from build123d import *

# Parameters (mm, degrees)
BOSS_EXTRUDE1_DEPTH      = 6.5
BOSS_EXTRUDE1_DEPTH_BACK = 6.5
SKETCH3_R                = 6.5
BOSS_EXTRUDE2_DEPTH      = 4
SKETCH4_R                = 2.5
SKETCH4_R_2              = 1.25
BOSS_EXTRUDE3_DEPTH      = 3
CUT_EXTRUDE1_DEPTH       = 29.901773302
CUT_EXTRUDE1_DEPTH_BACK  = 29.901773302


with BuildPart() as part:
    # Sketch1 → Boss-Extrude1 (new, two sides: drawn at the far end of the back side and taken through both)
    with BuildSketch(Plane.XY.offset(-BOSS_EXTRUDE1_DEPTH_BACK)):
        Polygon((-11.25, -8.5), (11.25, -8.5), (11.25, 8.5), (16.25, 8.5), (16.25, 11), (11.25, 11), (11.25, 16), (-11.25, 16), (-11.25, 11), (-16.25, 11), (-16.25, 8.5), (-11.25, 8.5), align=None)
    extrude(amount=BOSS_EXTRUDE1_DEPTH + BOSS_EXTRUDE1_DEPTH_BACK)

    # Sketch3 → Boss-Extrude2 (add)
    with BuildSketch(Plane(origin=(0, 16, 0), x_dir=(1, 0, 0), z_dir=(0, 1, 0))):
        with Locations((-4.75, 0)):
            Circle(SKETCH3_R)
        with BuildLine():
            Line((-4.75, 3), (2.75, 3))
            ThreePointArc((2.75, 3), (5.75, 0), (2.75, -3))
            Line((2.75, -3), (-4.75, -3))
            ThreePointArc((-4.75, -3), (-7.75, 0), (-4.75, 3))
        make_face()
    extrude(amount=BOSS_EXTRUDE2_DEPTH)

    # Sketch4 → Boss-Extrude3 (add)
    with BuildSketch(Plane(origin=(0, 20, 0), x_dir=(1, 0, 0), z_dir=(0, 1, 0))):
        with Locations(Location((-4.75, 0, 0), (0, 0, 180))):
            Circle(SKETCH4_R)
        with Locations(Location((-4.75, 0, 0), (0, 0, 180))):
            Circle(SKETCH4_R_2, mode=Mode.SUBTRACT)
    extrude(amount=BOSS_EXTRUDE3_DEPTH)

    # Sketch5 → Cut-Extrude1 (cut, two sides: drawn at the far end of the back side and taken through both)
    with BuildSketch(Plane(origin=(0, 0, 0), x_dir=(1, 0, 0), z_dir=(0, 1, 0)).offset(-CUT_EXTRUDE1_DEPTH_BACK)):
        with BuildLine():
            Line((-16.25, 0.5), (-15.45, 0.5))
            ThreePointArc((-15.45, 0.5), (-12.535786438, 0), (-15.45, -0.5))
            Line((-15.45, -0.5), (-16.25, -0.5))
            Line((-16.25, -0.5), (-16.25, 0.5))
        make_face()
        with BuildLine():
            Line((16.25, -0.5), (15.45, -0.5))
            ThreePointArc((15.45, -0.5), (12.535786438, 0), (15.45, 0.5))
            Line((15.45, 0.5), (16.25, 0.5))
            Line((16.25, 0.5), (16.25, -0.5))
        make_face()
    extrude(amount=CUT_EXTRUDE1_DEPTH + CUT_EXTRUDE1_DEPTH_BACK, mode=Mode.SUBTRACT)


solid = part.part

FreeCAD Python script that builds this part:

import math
import FreeCAD as App
import Part
import Sketcher

V = App.Vector
Q = App.Units.Quantity

doc = App.newDocument("Part")
params = doc.addObject("Spreadsheet::Sheet", "Params")
for row, (alias, value) in enumerate([
    ("sketch1_width", "5 mm"),
    ("sketch1_height", "17 mm"),
    ("sketch1_width2", "22.5 mm"),
    ("sketch1_height2", "2.5 mm"),
    ("pad1_length", "6.5 mm"),
    ("pad1_length2", "6.5 mm"),
    ("sketch2_radius", "3 mm"),
    ("sketch2_radius2", "6.5 mm"),
    ("pad2_length", "4 mm"),
    ("sketch3_diameter", "5 mm"),
    ("sketch3_diameter2", "2.5 mm"),
    ("pad3_length", "3 mm"),
    ("sketch4_radius", "1.5 mm"),
    ("sketch4_height", "1 mm"),
    ("sketch4_width", "0.8 mm"),
], start=1):
    params.set(f"A{row}", alias)
    params.set(f"B{row}", "=" + value)
    params.setAlias(f"B{row}", alias)

body = doc.addObject("PartDesign::Body", "Body")

# Sketch on XY plane
sketch1 = body.newObject("Sketcher::SketchObject", "Sketch")
sketch1.AttachmentSupport = (doc.getObject("XY_Plane"), [""])
sketch1.MapMode = "FlatFace"
sketch1.addGeometry([
    Part.LineSegment(V(-11.25, -8.5, 0), V(11.25, -8.5, 0)),  # 0
    Part.LineSegment(V(11.25, -8.5, 0), V(11.25, 8.5, 0)),  # 1
    Part.LineSegment(V(11.25, 8.5, 0), V(16.25, 8.5, 0)),  # 2
    Part.LineSegment(V(16.25, 8.5, 0), V(16.25, 11, 0)),  # 3
    Part.LineSegment(V(16.25, 11, 0), V(11.25, 11, 0)),  # 4
    Part.LineSegment(V(11.25, 11, 0), V(11.25, 16, 0)),  # 5
    Part.LineSegment(V(11.25, 16, 0), V(-11.25, 16, 0)),  # 6
    Part.LineSegment(V(-11.25, 16, 0), V(-11.25, 11, 0)),  # 7
    Part.LineSegment(V(-11.25, 11, 0), V(-16.25, 11, 0)),  # 8
    Part.LineSegment(V(-16.25, 11, 0), V(-16.25, 8.5, 0)),  # 9
    Part.LineSegment(V(-16.25, 8.5, 0), V(-11.25, 8.5, 0)),  # 10
    Part.LineSegment(V(-11.25, 8.5, 0), V(-11.25, -8.5, 0)),  # 11
], False)
sketch1.addConstraint([
    Sketcher.Constraint("Coincident", 0, 2, 1, 1),
    Sketcher.Constraint("Coincident", 1, 2, 2, 1),
    Sketcher.Constraint("Coincident", 2, 2, 3, 1),
    Sketcher.Constraint("Coincident", 3, 2, 4, 1),
    Sketcher.Constraint("Coincident", 4, 2, 5, 1),
    Sketcher.Constraint("Coincident", 5, 2, 6, 1),
    Sketcher.Constraint("Coincident", 6, 2, 7, 1),
    Sketcher.Constraint("Coincident", 7, 2, 8, 1),
    Sketcher.Constraint("Coincident", 8, 2, 9, 1),
    Sketcher.Constraint("Coincident", 9, 2, 10, 1),
    Sketcher.Constraint("Coincident", 10, 2, 11, 1),
    Sketcher.Constraint("Coincident", 11, 2, 0, 1),
    Sketcher.Constraint("Horizontal", 0),
    Sketcher.Constraint("Vertical", 1),
    Sketcher.Constraint("Horizontal", 2),
    Sketcher.Constraint("Vertical", 3),
    Sketcher.Constraint("Horizontal", 4),
    Sketcher.Constraint("Vertical", 5),
    Sketcher.Constraint("Horizontal", 6),
    Sketcher.Constraint("Vertical", 7),
    Sketcher.Constraint("Horizontal", 8),
    Sketcher.Constraint("Vertical", 9),
    Sketcher.Constraint("Horizontal", 10),
    Sketcher.Constraint("Vertical", 11),
    Sketcher.Constraint("Symmetric", 0, 2, 10, 2, -1, 1),
    Sketcher.Constraint("Symmetric", 4, 2, 7, 2, -2),
    Sketcher.Constraint("Symmetric", 2, 2, 9, 2, -2),
    Sketcher.Constraint("Vertical", 1, 2, 4, 2),
    Sketcher.Constraint("Equal", 10, 5),
    Sketcher.Constraint("DistanceX", 2, 1, 2, 2, Q("5 mm")),
    Sketcher.Constraint("DistanceY", 1, 1, 1, 2, Q("17 mm")),
    Sketcher.Constraint("DistanceX", 0, 1, 0, 2, Q("22.5 mm")),
    Sketcher.Constraint("DistanceY", 3, 1, 3, 2, Q("2.5 mm")),
])
sketch1.setExpression("Constraints[29]", "Params.sketch1_width")
sketch1.setExpression("Constraints[30]", "Params.sketch1_height")
sketch1.setExpression("Constraints[31]", "Params.sketch1_width2")
sketch1.setExpression("Constraints[32]", "Params.sketch1_height2")
pad1 = body.newObject("PartDesign::Pad", "Pad")
pad1.Profile = sketch1
pad1.Type = "TwoLengths"
pad1.setExpression("Length", "Params.pad1_length")
pad1.setExpression("Length2", "Params.pad1_length2")

# Sketch on XZ plane
sketch2 = body.newObject("Sketcher::SketchObject", "Sketch001")
sketch2.AttachmentSupport = (doc.getObject("XZ_Plane"), [""])
sketch2.MapMode = "FlatFace"
sketch2.AttachmentOffset = App.Placement(V(0, 0, -16), App.Rotation())
sketch2.addGeometry([
    Part.ArcOfCircle(Part.Circle(V(2.75, 0, 0), V(0, 0, 1), 3), math.radians(-90), math.radians(90)),
    Part.LineSegment(V(2.75, -3, 0), V(1.016281, -3, 0)),
    Part.ArcOfCircle(Part.Circle(V(-4.75, 0, 0), V(0, 0, 1), 6.5), math.radians(27.486426), math.radians(332.513574)),
    Part.LineSegment(V(1.016281, 3, 0), V(2.75, 3, 0)),
], False)
sketch2.addConstraint([
    Sketcher.Constraint("Tangent", 0, 1, 1, 1),
    Sketcher.Constraint("Coincident", 1, 2, 2, 2),
    Sketcher.Constraint("Coincident", 2, 1, 3, 1),
    Sketcher.Constraint("Tangent", 3, 2, 0, 2),
    Sketcher.Constraint("Horizontal", 1),
    Sketcher.Constraint("Horizontal", 3),
    Sketcher.Constraint("Symmetric", 1, 2, 2, 1, -1),
    Sketcher.Constraint("Radius", 0, Q("3 mm")),
    Sketcher.Constraint("Radius", 2, Q("6.5 mm")),
    Sketcher.Constraint("DistanceX", 2, 3, 0, 3, Q("7.5 mm")),
    Sketcher.Constraint("DistanceX", -1, 1, 0, 3, Q("2.75 mm")),
])
sketch2.setExpression("Constraints[7]", "Params.sketch2_radius")
sketch2.setExpression("Constraints[8]", "Params.sketch2_radius2")
pad2 = body.newObject("PartDesign::Pad", "Pad001")
pad2.Profile = sketch2
pad2.setExpression("Length", "Params.pad2_length")
pad2.Reversed = True

# Sketch on XZ plane
sketch3 = body.newObject("Sketcher::SketchObject", "Sketch002")
sketch3.AttachmentSupport = (doc.getObject("XZ_Plane"), [""])
sketch3.MapMode = "FlatFace"
sketch3.AttachmentOffset = App.Placement(V(0, 0, -20), App.Rotation())
sketch3.addGeometry([
    Part.Circle(V(-4.75, 0, 0), V(0, 0, 1), 2.5),
    Part.Circle(V(-4.75, 0, 0), V(0, 0, 1), 1.25),
], False)
sketch3.addConstraint([
    Sketcher.Constraint("Coincident", 1, 3, 0, 3),
    Sketcher.Constraint("PointOnObject", 0, 3, -1),
    Sketcher.Constraint("Diameter", 0, Q("5 mm")),
    Sketcher.Constraint("Diameter", 1, Q("2.5 mm")),
    Sketcher.Constraint("DistanceX", 0, 3, -1, 1, Q("4.75 mm")),
])
sketch3.setExpression("Constraints[2]", "Params.sketch3_diameter")
sketch3.setExpression("Constraints[3]", "Params.sketch3_diameter2")
pad3 = body.newObject("PartDesign::Pad", "Pad002")
pad3.Profile = sketch3
pad3.setExpression("Length", "Params.pad3_length")
pad3.Reversed = True

# Sketch on XZ plane
sketch4 = body.newObject("Sketcher::SketchObject", "Sketch003")
sketch4.AttachmentSupport = (doc.getObject("XZ_Plane"), [""])
sketch4.MapMode = "FlatFace"
sketch4.addGeometry([
    Part.LineSegment(V(-15.45, -0.5, 0), V(-16.25, -0.5, 0)),  # 0
    Part.LineSegment(V(-16.25, -0.5, 0), V(-16.25, 0.5, 0)),  # 1
    Part.LineSegment(V(-16.25, 0.5, 0), V(-15.45, 0.5, 0)),  # 2
    Part.ArcOfCircle(Part.Circle(V(-14.035786, 0, 0), V(0, 0, 1), 1.5), math.radians(-160.528779), math.radians(160.528779)),  # 3
    Part.LineSegment(V(15.45, 0.5, 0), V(16.25, 0.5, 0)),  # 4
    Part.LineSegment(V(16.25, 0.5, 0), V(16.25, -0.5, 0)),  # 5
    Part.LineSegment(V(16.25, -0.5, 0), V(15.45, -0.5, 0)),  # 6
    Part.ArcOfCircle(Part.Circle(V(14.035786, 0, 0), V(0, 0, 1), 1.5), math.radians(19.471221), math.radians(340.528779)),  # 7
], False)
sketch4.addConstraint([
    Sketcher.Constraint("Coincident", 0, 2, 1, 1),
    Sketcher.Constraint("Coincident", 1, 2, 2, 1),
    Sketcher.Constraint("Coincident", 2, 2, 3, 2),
    Sketcher.Constraint("Coincident", 3, 1, 0, 1),
    Sketcher.Constraint("Coincident", 4, 2, 5, 1),
    Sketcher.Constraint("Coincident", 5, 2, 6, 1),
    Sketcher.Constraint("Coincident", 6, 2, 7, 2),
    Sketcher.Constraint("Coincident", 7, 1, 4, 1),
    Sketcher.Constraint("Horizontal", 0),
    Sketcher.Constraint("Vertical", 1),
    Sketcher.Constraint("Horizontal", 2),
    Sketcher.Constraint("Horizontal", 4),
    Sketcher.Constraint("Vertical", 5),
    Sketcher.Constraint("Horizontal", 6),
    Sketcher.Constraint("Equal", 3, 7),
    Sketcher.Constraint("Symmetric", 3, 3, 7, 3, -1, 1),
    Sketcher.Constraint("Symmetric", 0, 2, 4, 2, -1, 1),
    Sketcher.Constraint("Symmetric", 3, 1, 6, 2, -2),
    Sketcher.Constraint("Horizontal", 2, 2, 4, 2),
    Sketcher.Constraint("Radius", 3, Q("1.5 mm")),
    Sketcher.Constraint("DistanceY", 1, 1, 1, 2, Q("1 mm")),
    Sketcher.Constraint("DistanceX", 0, 2, 0, 1, Q("0.8 mm")),
    Sketcher.Constraint("DistanceX", 2, 2, 4, 2, Q("31.7 mm")),
])
sketch4.setExpression("Constraints[19]", "Params.sketch4_radius")
sketch4.setExpression("Constraints[20]", "Params.sketch4_height")
sketch4.setExpression("Constraints[21]", "Params.sketch4_width")
pocket1 = body.newObject("PartDesign::Pocket", "Pocket")
pocket1.Profile = sketch4
pocket1.Type = "ThroughAll"
pocket1.Midplane = True

doc.recompute()
